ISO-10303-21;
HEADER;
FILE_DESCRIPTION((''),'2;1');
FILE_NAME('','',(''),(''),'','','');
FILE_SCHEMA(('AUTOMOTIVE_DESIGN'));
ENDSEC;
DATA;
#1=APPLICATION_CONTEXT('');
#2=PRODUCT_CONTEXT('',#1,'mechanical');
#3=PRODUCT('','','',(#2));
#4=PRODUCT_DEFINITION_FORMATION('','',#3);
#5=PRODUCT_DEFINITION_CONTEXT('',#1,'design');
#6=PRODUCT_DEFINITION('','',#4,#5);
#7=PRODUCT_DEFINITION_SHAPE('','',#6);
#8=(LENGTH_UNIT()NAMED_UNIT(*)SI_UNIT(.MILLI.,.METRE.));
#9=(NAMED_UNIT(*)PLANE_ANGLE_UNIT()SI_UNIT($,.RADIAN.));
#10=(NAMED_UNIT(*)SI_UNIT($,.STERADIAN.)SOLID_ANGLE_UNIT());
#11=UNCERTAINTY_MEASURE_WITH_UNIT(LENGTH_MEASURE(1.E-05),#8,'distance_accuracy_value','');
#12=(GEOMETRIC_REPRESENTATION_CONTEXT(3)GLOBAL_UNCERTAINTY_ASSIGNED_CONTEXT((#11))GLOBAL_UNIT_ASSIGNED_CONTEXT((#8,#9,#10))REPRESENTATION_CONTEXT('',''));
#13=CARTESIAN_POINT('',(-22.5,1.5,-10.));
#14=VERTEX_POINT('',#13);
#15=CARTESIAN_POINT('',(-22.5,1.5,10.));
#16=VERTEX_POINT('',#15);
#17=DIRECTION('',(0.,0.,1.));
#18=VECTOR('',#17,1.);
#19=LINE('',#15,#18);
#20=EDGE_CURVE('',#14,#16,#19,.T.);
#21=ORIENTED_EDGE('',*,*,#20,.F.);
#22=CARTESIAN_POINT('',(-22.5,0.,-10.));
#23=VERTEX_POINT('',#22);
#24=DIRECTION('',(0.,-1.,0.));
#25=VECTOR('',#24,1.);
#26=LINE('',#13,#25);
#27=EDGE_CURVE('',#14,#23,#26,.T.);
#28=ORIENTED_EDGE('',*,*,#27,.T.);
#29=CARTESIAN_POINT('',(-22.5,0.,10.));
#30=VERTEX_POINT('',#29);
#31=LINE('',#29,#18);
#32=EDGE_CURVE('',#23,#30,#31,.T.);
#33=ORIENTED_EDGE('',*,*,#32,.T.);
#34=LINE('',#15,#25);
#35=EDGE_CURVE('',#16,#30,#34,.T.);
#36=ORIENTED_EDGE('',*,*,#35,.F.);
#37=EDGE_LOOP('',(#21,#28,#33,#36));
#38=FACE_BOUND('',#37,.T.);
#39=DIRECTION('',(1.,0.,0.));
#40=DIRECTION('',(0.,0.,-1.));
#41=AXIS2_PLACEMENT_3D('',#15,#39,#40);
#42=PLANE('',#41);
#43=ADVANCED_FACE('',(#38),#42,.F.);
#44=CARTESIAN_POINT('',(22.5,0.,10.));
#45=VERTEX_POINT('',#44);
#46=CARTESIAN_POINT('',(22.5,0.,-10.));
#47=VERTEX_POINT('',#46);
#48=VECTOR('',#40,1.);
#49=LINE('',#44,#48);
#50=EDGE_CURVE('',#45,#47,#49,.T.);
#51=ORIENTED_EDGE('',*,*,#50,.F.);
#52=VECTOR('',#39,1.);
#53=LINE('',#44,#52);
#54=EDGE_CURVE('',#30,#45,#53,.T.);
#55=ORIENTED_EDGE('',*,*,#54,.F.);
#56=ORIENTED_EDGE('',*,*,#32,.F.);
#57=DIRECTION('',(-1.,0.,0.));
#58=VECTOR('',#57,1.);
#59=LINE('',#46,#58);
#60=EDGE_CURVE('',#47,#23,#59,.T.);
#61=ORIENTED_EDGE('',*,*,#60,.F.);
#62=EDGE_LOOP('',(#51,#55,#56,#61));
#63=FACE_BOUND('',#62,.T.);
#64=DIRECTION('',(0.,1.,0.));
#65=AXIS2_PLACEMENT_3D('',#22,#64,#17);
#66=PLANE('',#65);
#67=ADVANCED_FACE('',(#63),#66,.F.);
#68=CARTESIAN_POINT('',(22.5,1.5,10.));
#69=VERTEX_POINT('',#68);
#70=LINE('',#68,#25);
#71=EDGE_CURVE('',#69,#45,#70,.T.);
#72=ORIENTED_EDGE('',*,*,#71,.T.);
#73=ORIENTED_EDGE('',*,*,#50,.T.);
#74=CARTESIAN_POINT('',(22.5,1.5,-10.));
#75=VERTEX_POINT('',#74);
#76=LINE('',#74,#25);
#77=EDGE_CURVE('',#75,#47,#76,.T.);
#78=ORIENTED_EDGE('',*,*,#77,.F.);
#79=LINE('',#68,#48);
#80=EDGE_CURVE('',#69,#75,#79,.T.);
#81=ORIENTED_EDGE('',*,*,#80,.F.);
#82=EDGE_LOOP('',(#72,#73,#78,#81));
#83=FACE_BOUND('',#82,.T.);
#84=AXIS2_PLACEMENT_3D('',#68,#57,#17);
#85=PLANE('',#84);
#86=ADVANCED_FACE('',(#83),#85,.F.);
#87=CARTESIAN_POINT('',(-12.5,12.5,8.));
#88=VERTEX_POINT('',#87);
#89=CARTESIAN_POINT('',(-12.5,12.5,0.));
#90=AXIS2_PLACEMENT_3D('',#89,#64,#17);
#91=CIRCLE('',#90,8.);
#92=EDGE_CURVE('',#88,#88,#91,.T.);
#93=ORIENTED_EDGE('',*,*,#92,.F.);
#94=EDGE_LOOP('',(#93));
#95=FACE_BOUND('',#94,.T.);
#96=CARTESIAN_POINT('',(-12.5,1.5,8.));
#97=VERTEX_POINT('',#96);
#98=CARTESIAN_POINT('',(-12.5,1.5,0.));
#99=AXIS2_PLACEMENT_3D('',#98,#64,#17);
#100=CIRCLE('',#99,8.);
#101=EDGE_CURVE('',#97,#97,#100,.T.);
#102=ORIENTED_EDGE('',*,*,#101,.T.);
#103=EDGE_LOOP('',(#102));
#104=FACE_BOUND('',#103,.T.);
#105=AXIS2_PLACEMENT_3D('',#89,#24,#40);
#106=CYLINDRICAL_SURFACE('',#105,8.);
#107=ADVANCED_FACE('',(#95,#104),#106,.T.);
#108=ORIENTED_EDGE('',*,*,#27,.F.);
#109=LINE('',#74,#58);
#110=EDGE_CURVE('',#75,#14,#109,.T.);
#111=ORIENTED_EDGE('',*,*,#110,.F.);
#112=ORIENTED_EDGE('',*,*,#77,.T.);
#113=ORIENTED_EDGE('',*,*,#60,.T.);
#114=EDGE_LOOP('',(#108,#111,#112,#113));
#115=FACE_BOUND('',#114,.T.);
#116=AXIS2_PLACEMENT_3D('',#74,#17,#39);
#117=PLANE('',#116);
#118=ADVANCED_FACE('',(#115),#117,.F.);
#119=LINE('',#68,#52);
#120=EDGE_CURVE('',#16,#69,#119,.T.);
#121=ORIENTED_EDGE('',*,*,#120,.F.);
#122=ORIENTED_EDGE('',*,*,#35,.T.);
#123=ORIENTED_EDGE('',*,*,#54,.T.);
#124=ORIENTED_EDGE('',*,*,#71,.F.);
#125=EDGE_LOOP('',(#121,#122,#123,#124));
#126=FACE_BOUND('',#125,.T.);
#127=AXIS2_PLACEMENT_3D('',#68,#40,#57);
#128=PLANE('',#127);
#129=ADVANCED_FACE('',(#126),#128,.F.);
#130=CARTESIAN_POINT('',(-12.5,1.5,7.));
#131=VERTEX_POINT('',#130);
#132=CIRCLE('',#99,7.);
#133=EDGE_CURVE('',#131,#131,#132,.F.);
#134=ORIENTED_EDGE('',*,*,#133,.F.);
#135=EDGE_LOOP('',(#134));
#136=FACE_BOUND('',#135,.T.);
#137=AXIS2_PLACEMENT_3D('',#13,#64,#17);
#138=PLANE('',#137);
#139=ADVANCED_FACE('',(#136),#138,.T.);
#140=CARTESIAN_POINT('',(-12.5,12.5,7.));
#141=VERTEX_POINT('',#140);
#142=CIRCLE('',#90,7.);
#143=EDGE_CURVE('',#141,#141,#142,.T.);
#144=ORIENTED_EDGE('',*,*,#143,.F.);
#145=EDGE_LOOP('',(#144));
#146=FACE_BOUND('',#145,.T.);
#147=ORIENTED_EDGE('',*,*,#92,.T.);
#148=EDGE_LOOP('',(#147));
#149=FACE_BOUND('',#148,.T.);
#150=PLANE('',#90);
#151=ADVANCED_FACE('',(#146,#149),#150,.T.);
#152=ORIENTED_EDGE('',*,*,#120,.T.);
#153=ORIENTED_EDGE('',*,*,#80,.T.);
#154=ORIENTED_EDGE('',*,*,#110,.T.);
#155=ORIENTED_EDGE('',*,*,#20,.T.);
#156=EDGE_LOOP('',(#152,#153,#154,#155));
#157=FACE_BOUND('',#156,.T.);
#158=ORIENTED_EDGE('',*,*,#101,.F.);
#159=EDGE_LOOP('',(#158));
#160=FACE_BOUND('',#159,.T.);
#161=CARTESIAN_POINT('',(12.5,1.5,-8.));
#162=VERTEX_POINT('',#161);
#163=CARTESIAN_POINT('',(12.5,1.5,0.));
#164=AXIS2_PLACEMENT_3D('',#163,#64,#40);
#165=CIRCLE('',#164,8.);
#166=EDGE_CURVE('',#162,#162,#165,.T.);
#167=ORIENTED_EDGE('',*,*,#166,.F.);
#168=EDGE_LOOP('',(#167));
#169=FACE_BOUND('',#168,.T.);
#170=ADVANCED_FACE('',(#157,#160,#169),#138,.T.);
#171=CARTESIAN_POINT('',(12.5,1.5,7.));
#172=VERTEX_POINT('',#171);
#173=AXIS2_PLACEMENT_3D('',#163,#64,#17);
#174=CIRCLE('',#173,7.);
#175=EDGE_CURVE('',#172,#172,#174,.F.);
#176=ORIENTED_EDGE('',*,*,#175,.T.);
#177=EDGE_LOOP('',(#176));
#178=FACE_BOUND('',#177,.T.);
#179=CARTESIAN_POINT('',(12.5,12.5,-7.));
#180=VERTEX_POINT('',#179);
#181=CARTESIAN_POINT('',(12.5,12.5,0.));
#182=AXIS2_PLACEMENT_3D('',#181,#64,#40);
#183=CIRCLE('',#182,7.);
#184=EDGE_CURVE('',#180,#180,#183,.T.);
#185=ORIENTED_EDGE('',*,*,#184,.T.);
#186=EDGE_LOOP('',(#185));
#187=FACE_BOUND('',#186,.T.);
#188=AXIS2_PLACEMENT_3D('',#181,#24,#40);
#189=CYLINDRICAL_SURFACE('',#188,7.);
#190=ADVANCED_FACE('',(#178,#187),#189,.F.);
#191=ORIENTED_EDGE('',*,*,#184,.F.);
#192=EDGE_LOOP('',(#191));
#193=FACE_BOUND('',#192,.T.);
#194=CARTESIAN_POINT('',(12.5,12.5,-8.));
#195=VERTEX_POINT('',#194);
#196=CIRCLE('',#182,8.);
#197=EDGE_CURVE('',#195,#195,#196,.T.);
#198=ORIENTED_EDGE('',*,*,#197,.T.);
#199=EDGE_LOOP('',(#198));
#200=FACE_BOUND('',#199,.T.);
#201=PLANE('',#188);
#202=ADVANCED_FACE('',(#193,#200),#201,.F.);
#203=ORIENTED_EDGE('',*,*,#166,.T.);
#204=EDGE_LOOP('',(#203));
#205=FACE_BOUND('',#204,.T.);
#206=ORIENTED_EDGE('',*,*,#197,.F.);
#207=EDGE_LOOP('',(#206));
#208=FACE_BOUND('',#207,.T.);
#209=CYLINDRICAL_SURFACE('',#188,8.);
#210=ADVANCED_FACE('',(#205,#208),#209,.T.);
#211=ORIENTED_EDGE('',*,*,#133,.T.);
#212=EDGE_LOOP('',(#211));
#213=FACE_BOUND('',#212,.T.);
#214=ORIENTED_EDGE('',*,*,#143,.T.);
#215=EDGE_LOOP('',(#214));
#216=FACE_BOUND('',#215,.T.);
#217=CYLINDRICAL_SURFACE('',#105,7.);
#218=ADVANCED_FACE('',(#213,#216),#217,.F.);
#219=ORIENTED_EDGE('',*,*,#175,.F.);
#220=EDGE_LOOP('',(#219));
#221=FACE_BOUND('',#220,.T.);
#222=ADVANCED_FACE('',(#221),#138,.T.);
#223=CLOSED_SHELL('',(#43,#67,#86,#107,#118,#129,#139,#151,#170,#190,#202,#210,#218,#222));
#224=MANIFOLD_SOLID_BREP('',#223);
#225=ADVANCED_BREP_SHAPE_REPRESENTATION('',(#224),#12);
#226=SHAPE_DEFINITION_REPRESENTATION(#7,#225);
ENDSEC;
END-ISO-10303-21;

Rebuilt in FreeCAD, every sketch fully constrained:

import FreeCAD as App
import Part
import Sketcher

V = App.Vector


def add_polygon(sketch, points):
    """Adds a closed chain of lines whose ends are joined by coincident constraints."""
    first, n = sketch.GeometryCount, len(points)
    for a, b in zip(points, points[1:] + points[:1]):
        sketch.addGeometry(Part.LineSegment(App.Vector(*a, 0), App.Vector(*b, 0)), False)
    for i in range(n):
        sketch.addConstraint(Sketcher.Constraint("Coincident", first + i, 2, first + (i + 1) % n, 1))

doc = App.newDocument("Part")
body = doc.addObject("PartDesign::Body", "Body")

# Sketch on XZ plane
sketch1 = body.newObject("Sketcher::SketchObject", "Sketch")
sketch1.AttachmentSupport = (doc.getObject("XZ_Plane"), [""])
sketch1.MapMode = "FlatFace"
add_polygon(sketch1, [(-22, -10), (-22, 10), (22, 10), (22, -10)])  # lines 0-3
sketch1.addConstraint(Sketcher.Constraint("Vertical", 0))
sketch1.addConstraint(Sketcher.Constraint("Horizontal", 1))
sketch1.addConstraint(Sketcher.Constraint("Vertical", 2))
sketch1.addConstraint(Sketcher.Constraint("Horizontal", 3))
sketch1.addConstraint(Sketcher.Constraint("Symmetric", 0, 2, 2, 2, -1, 1))
sketch1.addConstraint(Sketcher.Constraint("DistanceX", 1, 1, 1, 2, 45.0))
sketch1.addConstraint(Sketcher.Constraint("DistanceY", 0, 1, 0, 2, 20.0))
pad1 = body.newObject("PartDesign::Pad", "Pad")
pad1.Profile = sketch1
pad1.Length = 1.5
pad1.Reversed = True

# Sketch on XZ plane
sketch2 = body.newObject("Sketcher::SketchObject", "Sketch001")
sketch2.AttachmentSupport = (doc.getObject("XZ_Plane"), [""])
sketch2.MapMode = "FlatFace"
sketch2.AttachmentOffset = App.Placement(V(0, 0, -1.5), App.Rotation())
sketch2.addGeometry(Part.Circle(V(-12, 0, 0), V(0, 0, 1), 8), False)
sketch2.addGeometry(Part.Circle(V(-12, 0, 0), V(0, 0, 1), 7), False)
sketch2.addGeometry(Part.Circle(V(12, 0, 0), V(0, 0, 1), 8), False)
sketch2.addGeometry(Part.Circle(V(12, 0, 0), V(0, 0, 1), 7), False)
sketch2.addConstraint(Sketcher.Constraint("Coincident", 1, 3, 0, 3))
sketch2.addConstraint(Sketcher.Constraint("Coincident", 3, 3, 2, 3))
sketch2.addConstraint(Sketcher.Constraint("Equal", 0, 2))
sketch2.addConstraint(Sketcher.Constraint("Equal", 1, 3))
sketch2.addConstraint(Sketcher.Constraint("Symmetric", 0, 3, 2, 3, -1, 1))
sketch2.addConstraint(Sketcher.Constraint("PointOnObject", 0, 3, -1))
sketch2.addConstraint(Sketcher.Constraint("Diameter", 0, 16.0))
sketch2.addConstraint(Sketcher.Constraint("Diameter", 1, 14.0))
sketch2.addConstraint(Sketcher.Constraint("DistanceX", 0, 3, 2, 3, 25.0))
pad2 = body.newObject("PartDesign::Pad", "Pad001")
pad2.Profile = sketch2
pad2.Length = 11
pad2.Reversed = True

doc.recompute()
